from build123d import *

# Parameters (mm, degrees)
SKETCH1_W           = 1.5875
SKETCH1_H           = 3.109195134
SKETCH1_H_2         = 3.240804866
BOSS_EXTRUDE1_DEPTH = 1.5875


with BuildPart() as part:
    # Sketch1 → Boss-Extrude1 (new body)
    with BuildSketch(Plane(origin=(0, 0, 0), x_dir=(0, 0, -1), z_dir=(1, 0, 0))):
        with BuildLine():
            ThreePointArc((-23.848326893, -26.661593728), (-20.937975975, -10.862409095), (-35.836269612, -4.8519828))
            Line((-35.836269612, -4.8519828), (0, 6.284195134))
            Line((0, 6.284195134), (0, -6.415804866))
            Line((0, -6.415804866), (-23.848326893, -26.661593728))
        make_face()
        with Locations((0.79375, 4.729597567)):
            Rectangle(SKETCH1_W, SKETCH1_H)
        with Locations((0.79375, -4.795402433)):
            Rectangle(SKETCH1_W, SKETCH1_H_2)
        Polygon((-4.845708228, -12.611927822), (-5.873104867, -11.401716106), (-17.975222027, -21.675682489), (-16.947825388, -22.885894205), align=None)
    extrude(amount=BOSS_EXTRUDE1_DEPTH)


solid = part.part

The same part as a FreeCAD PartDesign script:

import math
import FreeCAD as App
import Part
import Sketcher

V = App.Vector
Q = App.Units.Quantity

doc = App.newDocument("Part")
body = doc.addObject("PartDesign::Body", "Body")

sketch1 = doc.addObject("Sketcher::SketchObject", "Sketch")
body.addObject(sketch1)
sketch1.AttachmentSupport = (doc.YZ_Plane, [""])
sketch1.MapMode = "FlatFace"
sketch1.addGeometry([
    Part.LineSegment(V(-26.7, 23.8, 0), V(-21.7, 18, 0)),
    Part.LineSegment(V(-21.7, 18, 0), V(-22.9, 16.9, 0)),
    Part.LineSegment(V(-22.9, 16.9, 0), V(-12.6, 4.8, 0)),
    Part.LineSegment(V(-12.6, 4.8, 0), V(-11.4, 5.9, 0)),
    Part.LineSegment(V(-11.4, 5.9, 0), V(-6.4, 0, 0)),
    Part.LineSegment(V(-6.4, 0, 0), V(-6.4, -1.6, 0)),
    Part.LineSegment(V(-6.4, -1.6, 0), V(-3.2, -1.6, 0)),
    Part.LineSegment(V(-3.2, -1.6, 0), V(-3.2, 0, 0)),
    Part.LineSegment(V(-3.2, 0, 0), V(3.2, 0, 0)),
    Part.LineSegment(V(3.2, 0, 0), V(3.2, -1.6, 0)),
    Part.LineSegment(V(3.2, -1.6, 0), V(6.3, -1.6, 0)),
    Part.LineSegment(V(6.3, -1.6, 0), V(6.3, 0, 0)),
    Part.LineSegment(V(6.3, 0, 0), V(-4.9, 35.8, 0)),
    Part.ArcOfCircle(Part.Circle(V(-17, 32.1, 0), V(0, 0, 1), 12.7), math.radians(-140), math.radians(17)),
], False)
sketch1.addConstraint([
    Sketcher.Constraint("Coincident", 0, 2, 1, 1),
    Sketcher.Constraint("Coincident", 1, 2, 2, 1),
    Sketcher.Constraint("Coincident", 2, 2, 3, 1),
    Sketcher.Constraint("Coincident", 3, 2, 4, 1),
    Sketcher.Constraint("Coincident", 4, 2, 5, 1),
    Sketcher.Constraint("Coincident", 5, 2, 6, 1),
    Sketcher.Constraint("Coincident", 6, 2, 7, 1),
    Sketcher.Constraint("Coincident", 7, 2, 8, 1),
    Sketcher.Constraint("Coincident", 8, 2, 9, 1),
    Sketcher.Constraint("Coincident", 9, 2, 10, 1),
    Sketcher.Constraint("Coincident", 10, 2, 11, 1),
    Sketcher.Constraint("Coincident", 11, 2, 12, 1),
    Sketcher.Constraint("Tangent", 12, 2, 13, 2),
    Sketcher.Constraint("Tangent", 13, 1, 0, 1),
    Sketcher.Constraint("Vertical", 5),
    Sketcher.Constraint("Horizontal", 6),
    Sketcher.Constraint("Vertical", 7),
    Sketcher.Constraint("Horizontal", 8),
    Sketcher.Constraint("Vertical", 9),
    Sketcher.Constraint("Horizontal", 10),
    Sketcher.Constraint("Vertical", 11),
    Sketcher.Constraint("Symmetric", 7, 2, 8, 2, -1, 1),
    Sketcher.Constraint("PointOnObject", 4, 2, -1),
    Sketcher.Constraint("PointOnObject", 11, 2, -1),
    Sketcher.Constraint("Perpendicular", 0, 1),
    Sketcher.Constraint("Perpendicular", 1, 2),
    Sketcher.Constraint("Perpendicular", 2, 3),
    Sketcher.Constraint("Perpendicular", 3, 4),
    Sketcher.Constraint("Horizontal", 6, 2, 9, 2),
    Sketcher.Constraint("Equal", 1, 3),
    Sketcher.Constraint("Equal", 0, 4),
    Sketcher.Constraint("Radius", 13, Q("0.5 in")),
    Sketcher.Constraint("DistanceX", 8, 1, 8, 2, Q("0.25 in")),
    Sketcher.Constraint("DistanceX", 5, 2, 10, 2, Q("0.5 in")),
    Sketcher.Constraint("DistanceY", 5, 2, 5, 1, Q("0.0625 in")),
    Sketcher.Constraint("Distance", 1, Q("0.0625 in")),
    Sketcher.Constraint("Distance", 2, Q("0.625 in")),
    Sketcher.Constraint("DistanceX", 13, 3, -1, 1, Q("0.6685 in")),
    Sketcher.Constraint("DistanceY", -1, 1, 13, 3, Q("1.2625 in")),
    Sketcher.Constraint("DistanceX", 0, 2, 12, 2, Q("16.8237 mm")),
])
pad1 = doc.addObject("PartDesign::Pad", "Pad")
body.addObject(pad1)
pad1.Profile = sketch1
pad1.Length = Q("0.0625 in")

doc.recompute()
